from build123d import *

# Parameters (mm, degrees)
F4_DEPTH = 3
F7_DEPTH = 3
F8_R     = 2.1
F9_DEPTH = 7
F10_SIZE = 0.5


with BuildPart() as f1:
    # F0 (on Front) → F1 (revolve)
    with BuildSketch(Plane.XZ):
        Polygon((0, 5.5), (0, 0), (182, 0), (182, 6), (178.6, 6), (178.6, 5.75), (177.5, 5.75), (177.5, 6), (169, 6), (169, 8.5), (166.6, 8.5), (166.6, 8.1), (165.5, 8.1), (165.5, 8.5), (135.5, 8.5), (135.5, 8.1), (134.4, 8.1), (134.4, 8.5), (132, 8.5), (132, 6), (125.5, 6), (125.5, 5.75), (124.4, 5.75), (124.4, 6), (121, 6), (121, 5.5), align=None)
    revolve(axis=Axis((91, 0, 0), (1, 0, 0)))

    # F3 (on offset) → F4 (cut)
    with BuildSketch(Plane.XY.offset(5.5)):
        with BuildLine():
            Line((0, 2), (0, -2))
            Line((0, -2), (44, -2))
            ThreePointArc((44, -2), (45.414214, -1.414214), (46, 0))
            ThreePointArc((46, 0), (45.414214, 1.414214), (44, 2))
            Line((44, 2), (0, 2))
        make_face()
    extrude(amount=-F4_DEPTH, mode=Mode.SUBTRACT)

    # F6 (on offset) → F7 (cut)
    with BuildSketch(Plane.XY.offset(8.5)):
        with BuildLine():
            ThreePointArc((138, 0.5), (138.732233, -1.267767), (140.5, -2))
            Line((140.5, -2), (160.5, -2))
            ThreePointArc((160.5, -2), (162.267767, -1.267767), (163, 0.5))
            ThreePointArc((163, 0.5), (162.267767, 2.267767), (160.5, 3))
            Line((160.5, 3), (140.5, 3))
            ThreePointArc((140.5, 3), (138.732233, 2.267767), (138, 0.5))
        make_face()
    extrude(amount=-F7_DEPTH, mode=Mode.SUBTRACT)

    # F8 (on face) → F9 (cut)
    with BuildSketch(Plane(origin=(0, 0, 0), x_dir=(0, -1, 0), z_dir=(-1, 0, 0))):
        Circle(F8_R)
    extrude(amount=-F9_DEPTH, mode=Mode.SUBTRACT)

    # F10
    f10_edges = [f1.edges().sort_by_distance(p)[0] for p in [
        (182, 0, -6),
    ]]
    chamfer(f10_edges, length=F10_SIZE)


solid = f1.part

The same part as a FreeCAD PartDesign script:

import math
import FreeCAD as App
import Part
import Sketcher


def edges_at(feature, points):
    """Names of the edges that pass closest to the given points."""
    edges = feature.Shape.Edges
    near = lambda p: min(range(len(edges)), key=lambda i: edges[i].distToShape(Part.Vertex(*p))[0])
    return sorted({f"Edge{near(p) + 1}" for p in points})

doc = App.newDocument("Part")
body = doc.addObject("PartDesign::Body", "Body")

# Sketch on XZ plane
sketch1 = doc.addObject("Sketcher::SketchObject", "Sketch")
body.addObject(sketch1)
sketch1.AttachmentSupport = (doc.XZ_Plane, [""])
sketch1.MapMode = "FlatFace"
sketch1.addGeometry(Part.LineSegment(App.Vector(0, 5.5, 0), App.Vector(0, 0, 0)), False)
sketch1.addGeometry(Part.LineSegment(App.Vector(0, 0, 0), App.Vector(182, 0, 0)), False)
sketch1.addGeometry(Part.LineSegment(App.Vector(182, 0, 0), App.Vector(182, 6, 0)), False)
sketch1.addGeometry(Part.LineSegment(App.Vector(182, 6, 0), App.Vector(178.6, 6, 0)), False)
sketch1.addGeometry(Part.LineSegment(App.Vector(178.6, 6, 0), App.Vector(178.6, 5.75, 0)), False)
sketch1.addGeometry(Part.LineSegment(App.Vector(178.6, 5.75, 0), App.Vector(177.5, 5.75, 0)), False)
sketch1.addGeometry(Part.LineSegment(App.Vector(177.5, 5.75, 0), App.Vector(177.5, 6, 0)), False)
sketch1.addGeometry(Part.LineSegment(App.Vector(177.5, 6, 0), App.Vector(169, 6, 0)), False)
sketch1.addGeometry(Part.LineSegment(App.Vector(169, 6, 0), App.Vector(169, 8.5, 0)), False)
sketch1.addGeometry(Part.LineSegment(App.Vector(169, 8.5, 0), App.Vector(166.6, 8.5, 0)), False)
sketch1.addGeometry(Part.LineSegment(App.Vector(166.6, 8.5, 0), App.Vector(166.6, 8.1, 0)), False)
sketch1.addGeometry(Part.LineSegment(App.Vector(166.6, 8.1, 0), App.Vector(165.5, 8.1, 0)), False)
sketch1.addGeometry(Part.LineSegment(App.Vector(165.5, 8.1, 0), App.Vector(165.5, 8.5, 0)), False)
sketch1.addGeometry(Part.LineSegment(App.Vector(165.5, 8.5, 0), App.Vector(135.5, 8.5, 0)), False)
sketch1.addGeometry(Part.LineSegment(App.Vector(135.5, 8.5, 0), App.Vector(135.5, 8.1, 0)), False)
sketch1.addGeometry(Part.LineSegment(App.Vector(135.5, 8.1, 0), App.Vector(134.4, 8.1, 0)), False)
sketch1.addGeometry(Part.LineSegment(App.Vector(134.4, 8.1, 0), App.Vector(134.4, 8.5, 0)), False)
sketch1.addGeometry(Part.LineSegment(App.Vector(134.4, 8.5, 0), App.Vector(132, 8.5, 0)), False)
sketch1.addGeometry(Part.LineSegment(App.Vector(132, 8.5, 0), App.Vector(132, 6, 0)), False)
sketch1.addGeometry(Part.LineSegment(App.Vector(132, 6, 0), App.Vector(125.5, 6, 0)), False)
sketch1.addGeometry(Part.LineSegment(App.Vector(125.5, 6, 0), App.Vector(125.5, 5.75, 0)), False)
sketch1.addGeometry(Part.LineSegment(App.Vector(125.5, 5.75, 0), App.Vector(124.4, 5.75, 0)), False)
sketch1.addGeometry(Part.LineSegment(App.Vector(124.4, 5.75, 0), App.Vector(124.4, 6, 0)), False)
sketch1.addGeometry(Part.LineSegment(App.Vector(124.4, 6, 0), App.Vector(121, 6, 0)), False)
sketch1.addGeometry(Part.LineSegment(App.Vector(121, 6, 0), App.Vector(121, 5.5, 0)), False)
sketch1.addGeometry(Part.LineSegment(App.Vector(121, 5.5, 0), App.Vector(0, 5.5, 0)), False)
sketch1.addConstraint(Sketcher.Constraint("Coincident", 0, 2, 1, 1))
sketch1.addConstraint(Sketcher.Constraint("Coincident", 1, 2, 2, 1))
sketch1.addConstraint(Sketcher.Constraint("Coincident", 2, 2, 3, 1))
sketch1.addConstraint(Sketcher.Constraint("Coincident", 3, 2, 4, 1))
sketch1.addConstraint(Sketcher.Constraint("Coincident", 4, 2, 5, 1))
sketch1.addConstraint(Sketcher.Constraint("Coincident", 5, 2, 6, 1))
sketch1.addConstraint(Sketcher.Constraint("Coincident", 6, 2, 7, 1))
sketch1.addConstraint(Sketcher.Constraint("Coincident", 7, 2, 8, 1))
sketch1.addConstraint(Sketcher.Constraint("Coincident", 8, 2, 9, 1))
sketch1.addConstraint(Sketcher.Constraint("Coincident", 9, 2, 10, 1))
sketch1.addConstraint(Sketcher.Constraint("Coincident", 10, 2, 11, 1))
sketch1.addConstraint(Sketcher.Constraint("Coincident", 11, 2, 12, 1))
sketch1.addConstraint(Sketcher.Constraint("Coincident", 12, 2, 13, 1))
sketch1.addConstraint(Sketcher.Constraint("Coincident", 13, 2, 14, 1))
sketch1.addConstraint(Sketcher.Constraint("Coincident", 14, 2, 15, 1))
sketch1.addConstraint(Sketcher.Constraint("Coincident", 15, 2, 16, 1))
sketch1.addConstraint(Sketcher.Constraint("Coincident", 16, 2, 17, 1))
sketch1.addConstraint(Sketcher.Constraint("Coincident", 17, 2, 18, 1))
sketch1.addConstraint(Sketcher.Constraint("Coincident", 18, 2, 19, 1))
sketch1.addConstraint(Sketcher.Constraint("Coincident", 19, 2, 20, 1))
sketch1.addConstraint(Sketcher.Constraint("Coincident", 20, 2, 21, 1))
sketch1.addConstraint(Sketcher.Constraint("Coincident", 21, 2, 22, 1))
sketch1.addConstraint(Sketcher.Constraint("Coincident", 22, 2, 23, 1))
sketch1.addConstraint(Sketcher.Constraint("Coincident", 23, 2, 24, 1))
sketch1.addConstraint(Sketcher.Constraint("Coincident", 24, 2, 25, 1))
sketch1.addConstraint(Sketcher.Constraint("Coincident", 25, 2, 0, 1))
sketch1.addConstraint(Sketcher.Constraint("Vertical", 0))
sketch1.addConstraint(Sketcher.Constraint("Horizontal", 1))
sketch1.addConstraint(Sketcher.Constraint("Vertical", 2))
sketch1.addConstraint(Sketcher.Constraint("Horizontal", 3))
sketch1.addConstraint(Sketcher.Constraint("Vertical", 4))
sketch1.addConstraint(Sketcher.Constraint("Horizontal", 5))
sketch1.addConstraint(Sketcher.Constraint("Vertical", 6))
sketch1.addConstraint(Sketcher.Constraint("Horizontal", 7))
sketch1.addConstraint(Sketcher.Constraint("Vertical", 8))
sketch1.addConstraint(Sketcher.Constraint("Horizontal", 9))
sketch1.addConstraint(Sketcher.Constraint("Vertical", 10))
sketch1.addConstraint(Sketcher.Constraint("Horizontal", 11))
sketch1.addConstraint(Sketcher.Constraint("Vertical", 12))
sketch1.addConstraint(Sketcher.Constraint("Horizontal", 13))
sketch1.addConstraint(Sketcher.Constraint("Vertical", 14))
sketch1.addConstraint(Sketcher.Constraint("Horizontal", 15))
sketch1.addConstraint(Sketcher.Constraint("Vertical", 16))
sketch1.addConstraint(Sketcher.Constraint("Horizontal", 17))
sketch1.addConstraint(Sketcher.Constraint("Vertical", 18))
sketch1.addConstraint(Sketcher.Constraint("Horizontal", 19))
sketch1.addConstraint(Sketcher.Constraint("Vertical", 20))
sketch1.addConstraint(Sketcher.Constraint("Horizontal", 21))
sketch1.addConstraint(Sketcher.Constraint("Vertical", 22))
sketch1.addConstraint(Sketcher.Constraint("Horizontal", 23))
sketch1.addConstraint(Sketcher.Constraint("Vertical", 24))
sketch1.addConstraint(Sketcher.Constraint("Horizontal", 25))
sketch1.addConstraint(Sketcher.Constraint("Coincident", 0, 2, -1, 1))
sketch1.addConstraint(Sketcher.Constraint("Horizontal", 3, 2, 6, 2))
sketch1.addConstraint(Sketcher.Constraint("Horizontal", 9, 2, 12, 2))
sketch1.addConstraint(Sketcher.Constraint("Horizontal", 11, 2, 14, 2))
sketch1.addConstraint(Sketcher.Constraint("Horizontal", 13, 2, 16, 2))
sketch1.addConstraint(Sketcher.Constraint("Horizontal", 7, 2, 18, 2))
sketch1.addConstraint(Sketcher.Constraint("Horizontal", 5, 2, 20, 2))
sketch1.addConstraint(Sketcher.Constraint("Horizontal", 19, 2, 22, 2))
sketch1.addConstraint(Sketcher.Constraint("Equal", 5, 11))
sketch1.addConstraint(Sketcher.Constraint("Equal", 11, 15))
sketch1.addConstraint(Sketcher.Constraint("Equal", 9, 17))
sketch1.addConstraint(Sketcher.Constraint("Equal", 15, 21))
sketch1.addConstraint(Sketcher.Constraint("Equal", 3, 23))
sketch1.addConstraint(Sketcher.Constraint("DistanceX", 1, 1, 1, 2, 182.0))
sketch1.addConstraint(Sketcher.Constraint("DistanceX", 13, 2, 13, 1, 30.0))
sketch1.addConstraint(Sketcher.Constraint("DistanceX", 25, 2, 25, 1, 121.0))
sketch1.addConstraint(Sketcher.Constraint("DistanceY", 2, 1, 2, 2, 6.0))
sketch1.addConstraint(Sketcher.Constraint("DistanceX", 3, 2, 3, 1, 3.4))
sketch1.addConstraint(Sketcher.Constraint("DistanceX", 5, 2, 5, 1, 1.1))
sketch1.addConstraint(Sketcher.Constraint("DistanceX", 7, 2, 7, 1, 8.5))
sketch1.addConstraint(Sketcher.Constraint("DistanceX", 9, 2, 9, 1, 2.4))
sketch1.addConstraint(Sketcher.Constraint("DistanceY", 0, 2, 0, 1, 5.5))
sketch1.addConstraint(Sketcher.Constraint("DistanceY", 8, 1, 8, 2, 2.5))
sketch1.addConstraint(Sketcher.Constraint("DistanceY", 10, 2, 10, 1, 0.4))
sketch1.addConstraint(Sketcher.Constraint("DistanceY", 4, 2, 4, 1, 0.25))
revolution = doc.addObject("PartDesign::Revolution", "Revolution")
body.addObject(revolution)
revolution.Profile = sketch1
revolution.ReferenceAxis = (sketch1, ["H_Axis"])
revolution.Angle = 360

# Sketch on XY plane
sketch2 = doc.addObject("Sketcher::SketchObject", "Sketch001")
body.addObject(sketch2)
sketch2.AttachmentSupport = (doc.XY_Plane, [""])
sketch2.MapMode = "FlatFace"
sketch2.AttachmentOffset = App.Placement(App.Vector(0, 0, 5.5), App.Rotation())
sketch2.addGeometry(Part.LineSegment(App.Vector(0, 2, 0), App.Vector(0, -2, 0)), False)
sketch2.addGeometry(Part.LineSegment(App.Vector(0, -2, 0), App.Vector(44, -2, 0)), False)
sketch2.addGeometry(Part.ArcOfCircle(Part.Circle(App.Vector(44, 0, 0), App.Vector(0, 0, 1), 2), math.radians(-90), math.radians(0)), False)
sketch2.addGeometry(Part.ArcOfCircle(Part.Circle(App.Vector(44, 0, 0), App.Vector(0, 0, 1), 2), math.radians(0), math.radians(90)), False)
sketch2.addGeometry(Part.LineSegment(App.Vector(44, 2, 0), App.Vector(0, 2, 0)), False)
sketch2.addConstraint(Sketcher.Constraint("Coincident", 0, 2, 1, 1))
sketch2.addConstraint(Sketcher.Constraint("Tangent", 1, 2, 2, 1))
sketch2.addConstraint(Sketcher.Constraint("Tangent", 2, 2, 3, 1))
sketch2.addConstraint(Sketcher.Constraint("Tangent", 3, 2, 4, 1))
sketch2.addConstraint(Sketcher.Constraint("Coincident", 4, 2, 0, 1))
sketch2.addConstraint(Sketcher.Constraint("Vertical", 0))
sketch2.addConstraint(Sketcher.Constraint("Horizontal", 1))
sketch2.addConstraint(Sketcher.Constraint("Horizontal", 4))
sketch2.addConstraint(Sketcher.Constraint("Equal", 2, 3))
sketch2.addConstraint(Sketcher.Constraint("Symmetric", 0, 2, 4, 2, -1, 1))
sketch2.addConstraint(Sketcher.Constraint("PointOnObject", 2, 2, -1))
sketch2.addConstraint(Sketcher.Constraint("Radius", 2, 1.999999))
sketch2.addConstraint(Sketcher.Constraint("DistanceX", 1, 1, 1, 2, 44.0))
pocket1 = doc.addObject("PartDesign::Pocket", "Pocket")
body.addObject(pocket1)
pocket1.Profile = sketch2
pocket1.Length = 3

# Sketch on XY plane
sketch3 = doc.addObject("Sketcher::SketchObject", "Sketch002")
body.addObject(sketch3)
sketch3.AttachmentSupport = (doc.XY_Plane, [""])
sketch3.MapMode = "FlatFace"
sketch3.AttachmentOffset = App.Placement(App.Vector(0, 0, 8.5), App.Rotation())
sketch3.addGeometry(Part.ArcOfCircle(Part.Circle(App.Vector(140.5, 0.5, 0), App.Vector(0, 0, 1), 2.5), math.radians(180), math.radians(270)), False)
sketch3.addGeometry(Part.LineSegment(App.Vector(140.5, -2, 0), App.Vector(160.5, -2, 0)), False)
sketch3.addGeometry(Part.ArcOfCircle(Part.Circle(App.Vector(160.5, 0.5, 0), App.Vector(0, 0, 1), 2.5), math.radians(-90), math.radians(0)), False)
sketch3.addGeometry(Part.ArcOfCircle(Part.Circle(App.Vector(160.5, 0.5, 0), App.Vector(0, 0, 1), 2.5), math.radians(0), math.radians(90)), False)
sketch3.addGeometry(Part.LineSegment(App.Vector(160.5, 3, 0), App.Vector(140.5, 3, 0)), False)
sketch3.addGeometry(Part.ArcOfCircle(Part.Circle(App.Vector(140.5, 0.5, 0), App.Vector(0, 0, 1), 2.5), math.radians(90), math.radians(180)), False)
sketch3.addConstraint(Sketcher.Constraint("Tangent", 0, 2, 1, 1))
sketch3.addConstraint(Sketcher.Constraint("Tangent", 1, 2, 2, 1))
sketch3.addConstraint(Sketcher.Constraint("Tangent", 2, 2, 3, 1))
sketch3.addConstraint(Sketcher.Constraint("Tangent", 3, 2, 4, 1))
sketch3.addConstraint(Sketcher.Constraint("Tangent", 4, 2, 5, 1))
sketch3.addConstraint(Sketcher.Constraint("Tangent", 5, 2, 0, 1))
sketch3.addConstraint(Sketcher.Constraint("Horizontal", 1))
sketch3.addConstraint(Sketcher.Constraint("Horizontal", 4))
sketch3.addConstraint(Sketcher.Constraint("Equal", 0, 2))
sketch3.addConstraint(Sketcher.Constraint("Equal", 2, 3))
sketch3.addConstraint(Sketcher.Constraint("Horizontal", 5, 3, 2, 2))
sketch3.addConstraint(Sketcher.Constraint("Horizontal", 2, 2, 5, 2))
sketch3.addConstraint(Sketcher.Constraint("Radius", 0, 2.5))
sketch3.addConstraint(Sketcher.Constraint("DistanceX", 1, 1, 1, 2, 20.0))
sketch3.addConstraint(Sketcher.Constraint("DistanceY", 0, 2, -1, 1, 2.0))
sketch3.addConstraint(Sketcher.Constraint("DistanceX", -1, 1, 2, 2, 163.0))
pocket2 = doc.addObject("PartDesign::Pocket", "Pocket001")
body.addObject(pocket2)
pocket2.Profile = sketch3
pocket2.Length = 3

# Sketch on YZ plane
sketch4 = doc.addObject("Sketcher::SketchObject", "Sketch003")
body.addObject(sketch4)
sketch4.AttachmentSupport = (doc.YZ_Plane, [""])
sketch4.MapMode = "FlatFace"
sketch4.addGeometry(Part.Circle(App.Vector(0, 0, 0), App.Vector(0, 0, 1), 2.1), False)
sketch4.addConstraint(Sketcher.Constraint("Coincident", 0, 3, -1, 1))
sketch4.addConstraint(Sketcher.Constraint("Diameter", 0, 4.2))
pocket3 = doc.addObject("PartDesign::Pocket", "Pocket002")
body.addObject(pocket3)
pocket3.Profile = sketch4
pocket3.Length = 7
pocket3.Reversed = True
doc.recompute()

chamfer = doc.addObject("PartDesign::Chamfer", "Chamfer")
body.addObject(chamfer)
chamfer.Base = (pocket3, edges_at(pocket3, [(182, 0, -6)]))
chamfer.Size = 0.5

doc.recompute()
